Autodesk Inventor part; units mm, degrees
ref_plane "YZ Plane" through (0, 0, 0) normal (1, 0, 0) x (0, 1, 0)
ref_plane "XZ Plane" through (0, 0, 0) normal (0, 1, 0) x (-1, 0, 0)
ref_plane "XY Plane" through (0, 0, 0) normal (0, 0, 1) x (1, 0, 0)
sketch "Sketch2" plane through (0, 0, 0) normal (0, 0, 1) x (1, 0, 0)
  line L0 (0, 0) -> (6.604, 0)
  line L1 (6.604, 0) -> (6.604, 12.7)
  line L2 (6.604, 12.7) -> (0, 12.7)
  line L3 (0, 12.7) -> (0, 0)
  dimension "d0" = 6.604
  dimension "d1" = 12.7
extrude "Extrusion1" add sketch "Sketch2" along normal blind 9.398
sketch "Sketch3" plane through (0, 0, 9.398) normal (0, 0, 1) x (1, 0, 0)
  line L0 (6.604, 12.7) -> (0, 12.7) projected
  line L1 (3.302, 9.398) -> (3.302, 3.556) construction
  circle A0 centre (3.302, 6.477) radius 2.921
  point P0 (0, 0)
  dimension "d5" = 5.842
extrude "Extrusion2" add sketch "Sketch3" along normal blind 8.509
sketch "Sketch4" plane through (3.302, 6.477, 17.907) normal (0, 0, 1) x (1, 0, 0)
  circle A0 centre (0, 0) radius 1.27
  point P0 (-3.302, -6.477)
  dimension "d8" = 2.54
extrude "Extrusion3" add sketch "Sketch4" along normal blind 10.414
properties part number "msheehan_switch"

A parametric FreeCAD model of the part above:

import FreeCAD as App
import Part
import Sketcher

V = App.Vector
Q = App.Units.Quantity


def add_polygon(sketch, points):
    """Adds a closed chain of lines whose ends are joined by coincident constraints."""
    first, n = sketch.GeometryCount, len(points)
    for a, b in zip(points, points[1:] + points[:1]):
        sketch.addGeometry(Part.LineSegment(App.Vector(*a, 0), App.Vector(*b, 0)), False)
    for i in range(n):
        sketch.addConstraint(Sketcher.Constraint("Coincident", first + i, 2, first + (i + 1) % n, 1))

doc = App.newDocument("Part")
body = doc.addObject("PartDesign::Body", "Body")

# Sketch on XY plane
sketch1 = body.newObject("Sketcher::SketchObject", "Sketch")
sketch1.AttachmentSupport = (doc.getObject("XY_Plane"), [""])
sketch1.MapMode = "FlatFace"
add_polygon(sketch1, [(0, 13), (0, 0), (7, 0), (7, 13)])  # lines 0-3
sketch1.addConstraint([
    Sketcher.Constraint("Vertical", 0),
    Sketcher.Constraint("Horizontal", 1),
    Sketcher.Constraint("Vertical", 2),
    Sketcher.Constraint("Horizontal", 3),
    Sketcher.Constraint("Coincident", 0, 2, -1, 1),
    Sketcher.Constraint("DistanceY", 0, 2, 0, 1, Q("0.5 in")),
    Sketcher.Constraint("DistanceX", 1, 1, 1, 2, Q("0.26 in")),
])
pad1 = body.newObject("PartDesign::Pad", "Pad")
pad1.Profile = sketch1
pad1.Length = Q("0.37 in")

# Sketch on XY plane
sketch2 = body.newObject("Sketcher::SketchObject", "Sketch001")
sketch2.AttachmentSupport = (doc.getObject("XY_Plane"), [""])
sketch2.MapMode = "FlatFace"
sketch2.AttachmentOffset = App.Placement(V(0, 0, 0.37 * 25.4), App.Rotation())
sketch2.addGeometry(Part.Circle(V(3.3, 6.5, 0), V(0, 0, 1), 2.9), False)
sketch2.addConstraint([
    Sketcher.Constraint("Diameter", 0, Q("0.23 in")),
    Sketcher.Constraint("DistanceX", -1, 1, 0, 3, Q("0.13 in")),
    Sketcher.Constraint("DistanceY", -1, 1, 0, 3, Q("0.255 in")),
])
pad2 = body.newObject("PartDesign::Pad", "Pad001")
pad2.Profile = sketch2
pad2.Length = Q("0.335 in")

# Sketch on XY plane
sketch3 = body.newObject("Sketcher::SketchObject", "Sketch002")
sketch3.AttachmentSupport = (doc.getObject("XY_Plane"), [""])
sketch3.MapMode = "FlatFace"
sketch3.AttachmentOffset = App.Placement(V(0, 0, 0.705 * 25.4), App.Rotation())
sketch3.addGeometry(Part.Circle(V(3.3, 6.5, 0), V(0, 0, 1), 1.3), False)
sketch3.addConstraint([
    Sketcher.Constraint("Diameter", 0, Q("0.1 in")),
    Sketcher.Constraint("DistanceX", -1, 1, 0, 3, Q("0.13 in")),
    Sketcher.Constraint("DistanceY", -1, 1, 0, 3, Q("0.255 in")),
])
pad3 = body.newObject("PartDesign::Pad", "Pad002")
pad3.Profile = sketch3
pad3.Length = Q("0.41 in")

doc.recompute()
